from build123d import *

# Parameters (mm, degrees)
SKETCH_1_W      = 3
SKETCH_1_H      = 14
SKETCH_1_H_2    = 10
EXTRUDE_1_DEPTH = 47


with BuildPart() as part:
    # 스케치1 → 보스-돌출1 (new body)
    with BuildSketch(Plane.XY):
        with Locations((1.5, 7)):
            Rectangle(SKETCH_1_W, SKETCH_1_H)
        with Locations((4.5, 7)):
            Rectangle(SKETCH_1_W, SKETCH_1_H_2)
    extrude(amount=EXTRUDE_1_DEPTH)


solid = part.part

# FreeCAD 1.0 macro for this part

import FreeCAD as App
import Part
import Sketcher
from FreeCAD import Vector
Q = App.Units.Quantity

doc = App.newDocument("Part")
body = doc.addObject("PartDesign::Body", "Body")

sketch1 = body.newObject("Sketcher::SketchObject", "Sketch")
sketch1.AttachmentSupport = (doc.getObject("XY_Plane"), [""])
sketch1.MapMode = "FlatFace"
sketch1.addGeometry([
    Part.LineSegment(Vector(0, 14, 0), Vector(0, 0, 0)),
    Part.LineSegment(Vector(0, 0, 0), Vector(3, 0, 0)),
    Part.LineSegment(Vector(3, 0, 0), Vector(3, 2, 0)),
    Part.LineSegment(Vector(3, 2, 0), Vector(6, 2, 0)),
    Part.LineSegment(Vector(6, 2, 0), Vector(6, 12, 0)),
    Part.LineSegment(Vector(6, 12, 0), Vector(3, 12, 0)),
    Part.LineSegment(Vector(3, 12, 0), Vector(3, 14, 0)),
    Part.LineSegment(Vector(3, 14, 0), Vector(0, 14, 0)),
], False)
sketch1.addConstraint([
    Sketcher.Constraint("Coincident", 0, 2, 1, 1),
    Sketcher.Constraint("Coincident", 1, 2, 2, 1),
    Sketcher.Constraint("Coincident", 2, 2, 3, 1),
    Sketcher.Constraint("Coincident", 3, 2, 4, 1),
    Sketcher.Constraint("Coincident", 4, 2, 5, 1),
    Sketcher.Constraint("Coincident", 5, 2, 6, 1),
    Sketcher.Constraint("Coincident", 6, 2, 7, 1),
    Sketcher.Constraint("Coincident", 7, 2, 0, 1),
    Sketcher.Constraint("Vertical", 0),
    Sketcher.Constraint("Horizontal", 1),
    Sketcher.Constraint("Vertical", 2),
    Sketcher.Constraint("Horizontal", 3),
    Sketcher.Constraint("Vertical", 4),
    Sketcher.Constraint("Horizontal", 5),
    Sketcher.Constraint("Vertical", 6),
    Sketcher.Constraint("Horizontal", 7),
    Sketcher.Constraint("Coincident", 0, 2, -1, 1),
    Sketcher.Constraint("Vertical", 2, 2, 5, 2),
    Sketcher.Constraint("Equal", 1, 3),
    Sketcher.Constraint("Equal", 2, 6),
    Sketcher.Constraint("DistanceX", 1, 1, 1, 2, Q("3 mm")),
    Sketcher.Constraint("DistanceY", 0, 2, 0, 1, Q("14 mm")),
    Sketcher.Constraint("DistanceY", 2, 1, 2, 2, Q("2 mm")),
])
pad1 = body.newObject("PartDesign::Pad", "Pad")
pad1.Profile = sketch1
pad1.Length = 47

doc.recompute()
